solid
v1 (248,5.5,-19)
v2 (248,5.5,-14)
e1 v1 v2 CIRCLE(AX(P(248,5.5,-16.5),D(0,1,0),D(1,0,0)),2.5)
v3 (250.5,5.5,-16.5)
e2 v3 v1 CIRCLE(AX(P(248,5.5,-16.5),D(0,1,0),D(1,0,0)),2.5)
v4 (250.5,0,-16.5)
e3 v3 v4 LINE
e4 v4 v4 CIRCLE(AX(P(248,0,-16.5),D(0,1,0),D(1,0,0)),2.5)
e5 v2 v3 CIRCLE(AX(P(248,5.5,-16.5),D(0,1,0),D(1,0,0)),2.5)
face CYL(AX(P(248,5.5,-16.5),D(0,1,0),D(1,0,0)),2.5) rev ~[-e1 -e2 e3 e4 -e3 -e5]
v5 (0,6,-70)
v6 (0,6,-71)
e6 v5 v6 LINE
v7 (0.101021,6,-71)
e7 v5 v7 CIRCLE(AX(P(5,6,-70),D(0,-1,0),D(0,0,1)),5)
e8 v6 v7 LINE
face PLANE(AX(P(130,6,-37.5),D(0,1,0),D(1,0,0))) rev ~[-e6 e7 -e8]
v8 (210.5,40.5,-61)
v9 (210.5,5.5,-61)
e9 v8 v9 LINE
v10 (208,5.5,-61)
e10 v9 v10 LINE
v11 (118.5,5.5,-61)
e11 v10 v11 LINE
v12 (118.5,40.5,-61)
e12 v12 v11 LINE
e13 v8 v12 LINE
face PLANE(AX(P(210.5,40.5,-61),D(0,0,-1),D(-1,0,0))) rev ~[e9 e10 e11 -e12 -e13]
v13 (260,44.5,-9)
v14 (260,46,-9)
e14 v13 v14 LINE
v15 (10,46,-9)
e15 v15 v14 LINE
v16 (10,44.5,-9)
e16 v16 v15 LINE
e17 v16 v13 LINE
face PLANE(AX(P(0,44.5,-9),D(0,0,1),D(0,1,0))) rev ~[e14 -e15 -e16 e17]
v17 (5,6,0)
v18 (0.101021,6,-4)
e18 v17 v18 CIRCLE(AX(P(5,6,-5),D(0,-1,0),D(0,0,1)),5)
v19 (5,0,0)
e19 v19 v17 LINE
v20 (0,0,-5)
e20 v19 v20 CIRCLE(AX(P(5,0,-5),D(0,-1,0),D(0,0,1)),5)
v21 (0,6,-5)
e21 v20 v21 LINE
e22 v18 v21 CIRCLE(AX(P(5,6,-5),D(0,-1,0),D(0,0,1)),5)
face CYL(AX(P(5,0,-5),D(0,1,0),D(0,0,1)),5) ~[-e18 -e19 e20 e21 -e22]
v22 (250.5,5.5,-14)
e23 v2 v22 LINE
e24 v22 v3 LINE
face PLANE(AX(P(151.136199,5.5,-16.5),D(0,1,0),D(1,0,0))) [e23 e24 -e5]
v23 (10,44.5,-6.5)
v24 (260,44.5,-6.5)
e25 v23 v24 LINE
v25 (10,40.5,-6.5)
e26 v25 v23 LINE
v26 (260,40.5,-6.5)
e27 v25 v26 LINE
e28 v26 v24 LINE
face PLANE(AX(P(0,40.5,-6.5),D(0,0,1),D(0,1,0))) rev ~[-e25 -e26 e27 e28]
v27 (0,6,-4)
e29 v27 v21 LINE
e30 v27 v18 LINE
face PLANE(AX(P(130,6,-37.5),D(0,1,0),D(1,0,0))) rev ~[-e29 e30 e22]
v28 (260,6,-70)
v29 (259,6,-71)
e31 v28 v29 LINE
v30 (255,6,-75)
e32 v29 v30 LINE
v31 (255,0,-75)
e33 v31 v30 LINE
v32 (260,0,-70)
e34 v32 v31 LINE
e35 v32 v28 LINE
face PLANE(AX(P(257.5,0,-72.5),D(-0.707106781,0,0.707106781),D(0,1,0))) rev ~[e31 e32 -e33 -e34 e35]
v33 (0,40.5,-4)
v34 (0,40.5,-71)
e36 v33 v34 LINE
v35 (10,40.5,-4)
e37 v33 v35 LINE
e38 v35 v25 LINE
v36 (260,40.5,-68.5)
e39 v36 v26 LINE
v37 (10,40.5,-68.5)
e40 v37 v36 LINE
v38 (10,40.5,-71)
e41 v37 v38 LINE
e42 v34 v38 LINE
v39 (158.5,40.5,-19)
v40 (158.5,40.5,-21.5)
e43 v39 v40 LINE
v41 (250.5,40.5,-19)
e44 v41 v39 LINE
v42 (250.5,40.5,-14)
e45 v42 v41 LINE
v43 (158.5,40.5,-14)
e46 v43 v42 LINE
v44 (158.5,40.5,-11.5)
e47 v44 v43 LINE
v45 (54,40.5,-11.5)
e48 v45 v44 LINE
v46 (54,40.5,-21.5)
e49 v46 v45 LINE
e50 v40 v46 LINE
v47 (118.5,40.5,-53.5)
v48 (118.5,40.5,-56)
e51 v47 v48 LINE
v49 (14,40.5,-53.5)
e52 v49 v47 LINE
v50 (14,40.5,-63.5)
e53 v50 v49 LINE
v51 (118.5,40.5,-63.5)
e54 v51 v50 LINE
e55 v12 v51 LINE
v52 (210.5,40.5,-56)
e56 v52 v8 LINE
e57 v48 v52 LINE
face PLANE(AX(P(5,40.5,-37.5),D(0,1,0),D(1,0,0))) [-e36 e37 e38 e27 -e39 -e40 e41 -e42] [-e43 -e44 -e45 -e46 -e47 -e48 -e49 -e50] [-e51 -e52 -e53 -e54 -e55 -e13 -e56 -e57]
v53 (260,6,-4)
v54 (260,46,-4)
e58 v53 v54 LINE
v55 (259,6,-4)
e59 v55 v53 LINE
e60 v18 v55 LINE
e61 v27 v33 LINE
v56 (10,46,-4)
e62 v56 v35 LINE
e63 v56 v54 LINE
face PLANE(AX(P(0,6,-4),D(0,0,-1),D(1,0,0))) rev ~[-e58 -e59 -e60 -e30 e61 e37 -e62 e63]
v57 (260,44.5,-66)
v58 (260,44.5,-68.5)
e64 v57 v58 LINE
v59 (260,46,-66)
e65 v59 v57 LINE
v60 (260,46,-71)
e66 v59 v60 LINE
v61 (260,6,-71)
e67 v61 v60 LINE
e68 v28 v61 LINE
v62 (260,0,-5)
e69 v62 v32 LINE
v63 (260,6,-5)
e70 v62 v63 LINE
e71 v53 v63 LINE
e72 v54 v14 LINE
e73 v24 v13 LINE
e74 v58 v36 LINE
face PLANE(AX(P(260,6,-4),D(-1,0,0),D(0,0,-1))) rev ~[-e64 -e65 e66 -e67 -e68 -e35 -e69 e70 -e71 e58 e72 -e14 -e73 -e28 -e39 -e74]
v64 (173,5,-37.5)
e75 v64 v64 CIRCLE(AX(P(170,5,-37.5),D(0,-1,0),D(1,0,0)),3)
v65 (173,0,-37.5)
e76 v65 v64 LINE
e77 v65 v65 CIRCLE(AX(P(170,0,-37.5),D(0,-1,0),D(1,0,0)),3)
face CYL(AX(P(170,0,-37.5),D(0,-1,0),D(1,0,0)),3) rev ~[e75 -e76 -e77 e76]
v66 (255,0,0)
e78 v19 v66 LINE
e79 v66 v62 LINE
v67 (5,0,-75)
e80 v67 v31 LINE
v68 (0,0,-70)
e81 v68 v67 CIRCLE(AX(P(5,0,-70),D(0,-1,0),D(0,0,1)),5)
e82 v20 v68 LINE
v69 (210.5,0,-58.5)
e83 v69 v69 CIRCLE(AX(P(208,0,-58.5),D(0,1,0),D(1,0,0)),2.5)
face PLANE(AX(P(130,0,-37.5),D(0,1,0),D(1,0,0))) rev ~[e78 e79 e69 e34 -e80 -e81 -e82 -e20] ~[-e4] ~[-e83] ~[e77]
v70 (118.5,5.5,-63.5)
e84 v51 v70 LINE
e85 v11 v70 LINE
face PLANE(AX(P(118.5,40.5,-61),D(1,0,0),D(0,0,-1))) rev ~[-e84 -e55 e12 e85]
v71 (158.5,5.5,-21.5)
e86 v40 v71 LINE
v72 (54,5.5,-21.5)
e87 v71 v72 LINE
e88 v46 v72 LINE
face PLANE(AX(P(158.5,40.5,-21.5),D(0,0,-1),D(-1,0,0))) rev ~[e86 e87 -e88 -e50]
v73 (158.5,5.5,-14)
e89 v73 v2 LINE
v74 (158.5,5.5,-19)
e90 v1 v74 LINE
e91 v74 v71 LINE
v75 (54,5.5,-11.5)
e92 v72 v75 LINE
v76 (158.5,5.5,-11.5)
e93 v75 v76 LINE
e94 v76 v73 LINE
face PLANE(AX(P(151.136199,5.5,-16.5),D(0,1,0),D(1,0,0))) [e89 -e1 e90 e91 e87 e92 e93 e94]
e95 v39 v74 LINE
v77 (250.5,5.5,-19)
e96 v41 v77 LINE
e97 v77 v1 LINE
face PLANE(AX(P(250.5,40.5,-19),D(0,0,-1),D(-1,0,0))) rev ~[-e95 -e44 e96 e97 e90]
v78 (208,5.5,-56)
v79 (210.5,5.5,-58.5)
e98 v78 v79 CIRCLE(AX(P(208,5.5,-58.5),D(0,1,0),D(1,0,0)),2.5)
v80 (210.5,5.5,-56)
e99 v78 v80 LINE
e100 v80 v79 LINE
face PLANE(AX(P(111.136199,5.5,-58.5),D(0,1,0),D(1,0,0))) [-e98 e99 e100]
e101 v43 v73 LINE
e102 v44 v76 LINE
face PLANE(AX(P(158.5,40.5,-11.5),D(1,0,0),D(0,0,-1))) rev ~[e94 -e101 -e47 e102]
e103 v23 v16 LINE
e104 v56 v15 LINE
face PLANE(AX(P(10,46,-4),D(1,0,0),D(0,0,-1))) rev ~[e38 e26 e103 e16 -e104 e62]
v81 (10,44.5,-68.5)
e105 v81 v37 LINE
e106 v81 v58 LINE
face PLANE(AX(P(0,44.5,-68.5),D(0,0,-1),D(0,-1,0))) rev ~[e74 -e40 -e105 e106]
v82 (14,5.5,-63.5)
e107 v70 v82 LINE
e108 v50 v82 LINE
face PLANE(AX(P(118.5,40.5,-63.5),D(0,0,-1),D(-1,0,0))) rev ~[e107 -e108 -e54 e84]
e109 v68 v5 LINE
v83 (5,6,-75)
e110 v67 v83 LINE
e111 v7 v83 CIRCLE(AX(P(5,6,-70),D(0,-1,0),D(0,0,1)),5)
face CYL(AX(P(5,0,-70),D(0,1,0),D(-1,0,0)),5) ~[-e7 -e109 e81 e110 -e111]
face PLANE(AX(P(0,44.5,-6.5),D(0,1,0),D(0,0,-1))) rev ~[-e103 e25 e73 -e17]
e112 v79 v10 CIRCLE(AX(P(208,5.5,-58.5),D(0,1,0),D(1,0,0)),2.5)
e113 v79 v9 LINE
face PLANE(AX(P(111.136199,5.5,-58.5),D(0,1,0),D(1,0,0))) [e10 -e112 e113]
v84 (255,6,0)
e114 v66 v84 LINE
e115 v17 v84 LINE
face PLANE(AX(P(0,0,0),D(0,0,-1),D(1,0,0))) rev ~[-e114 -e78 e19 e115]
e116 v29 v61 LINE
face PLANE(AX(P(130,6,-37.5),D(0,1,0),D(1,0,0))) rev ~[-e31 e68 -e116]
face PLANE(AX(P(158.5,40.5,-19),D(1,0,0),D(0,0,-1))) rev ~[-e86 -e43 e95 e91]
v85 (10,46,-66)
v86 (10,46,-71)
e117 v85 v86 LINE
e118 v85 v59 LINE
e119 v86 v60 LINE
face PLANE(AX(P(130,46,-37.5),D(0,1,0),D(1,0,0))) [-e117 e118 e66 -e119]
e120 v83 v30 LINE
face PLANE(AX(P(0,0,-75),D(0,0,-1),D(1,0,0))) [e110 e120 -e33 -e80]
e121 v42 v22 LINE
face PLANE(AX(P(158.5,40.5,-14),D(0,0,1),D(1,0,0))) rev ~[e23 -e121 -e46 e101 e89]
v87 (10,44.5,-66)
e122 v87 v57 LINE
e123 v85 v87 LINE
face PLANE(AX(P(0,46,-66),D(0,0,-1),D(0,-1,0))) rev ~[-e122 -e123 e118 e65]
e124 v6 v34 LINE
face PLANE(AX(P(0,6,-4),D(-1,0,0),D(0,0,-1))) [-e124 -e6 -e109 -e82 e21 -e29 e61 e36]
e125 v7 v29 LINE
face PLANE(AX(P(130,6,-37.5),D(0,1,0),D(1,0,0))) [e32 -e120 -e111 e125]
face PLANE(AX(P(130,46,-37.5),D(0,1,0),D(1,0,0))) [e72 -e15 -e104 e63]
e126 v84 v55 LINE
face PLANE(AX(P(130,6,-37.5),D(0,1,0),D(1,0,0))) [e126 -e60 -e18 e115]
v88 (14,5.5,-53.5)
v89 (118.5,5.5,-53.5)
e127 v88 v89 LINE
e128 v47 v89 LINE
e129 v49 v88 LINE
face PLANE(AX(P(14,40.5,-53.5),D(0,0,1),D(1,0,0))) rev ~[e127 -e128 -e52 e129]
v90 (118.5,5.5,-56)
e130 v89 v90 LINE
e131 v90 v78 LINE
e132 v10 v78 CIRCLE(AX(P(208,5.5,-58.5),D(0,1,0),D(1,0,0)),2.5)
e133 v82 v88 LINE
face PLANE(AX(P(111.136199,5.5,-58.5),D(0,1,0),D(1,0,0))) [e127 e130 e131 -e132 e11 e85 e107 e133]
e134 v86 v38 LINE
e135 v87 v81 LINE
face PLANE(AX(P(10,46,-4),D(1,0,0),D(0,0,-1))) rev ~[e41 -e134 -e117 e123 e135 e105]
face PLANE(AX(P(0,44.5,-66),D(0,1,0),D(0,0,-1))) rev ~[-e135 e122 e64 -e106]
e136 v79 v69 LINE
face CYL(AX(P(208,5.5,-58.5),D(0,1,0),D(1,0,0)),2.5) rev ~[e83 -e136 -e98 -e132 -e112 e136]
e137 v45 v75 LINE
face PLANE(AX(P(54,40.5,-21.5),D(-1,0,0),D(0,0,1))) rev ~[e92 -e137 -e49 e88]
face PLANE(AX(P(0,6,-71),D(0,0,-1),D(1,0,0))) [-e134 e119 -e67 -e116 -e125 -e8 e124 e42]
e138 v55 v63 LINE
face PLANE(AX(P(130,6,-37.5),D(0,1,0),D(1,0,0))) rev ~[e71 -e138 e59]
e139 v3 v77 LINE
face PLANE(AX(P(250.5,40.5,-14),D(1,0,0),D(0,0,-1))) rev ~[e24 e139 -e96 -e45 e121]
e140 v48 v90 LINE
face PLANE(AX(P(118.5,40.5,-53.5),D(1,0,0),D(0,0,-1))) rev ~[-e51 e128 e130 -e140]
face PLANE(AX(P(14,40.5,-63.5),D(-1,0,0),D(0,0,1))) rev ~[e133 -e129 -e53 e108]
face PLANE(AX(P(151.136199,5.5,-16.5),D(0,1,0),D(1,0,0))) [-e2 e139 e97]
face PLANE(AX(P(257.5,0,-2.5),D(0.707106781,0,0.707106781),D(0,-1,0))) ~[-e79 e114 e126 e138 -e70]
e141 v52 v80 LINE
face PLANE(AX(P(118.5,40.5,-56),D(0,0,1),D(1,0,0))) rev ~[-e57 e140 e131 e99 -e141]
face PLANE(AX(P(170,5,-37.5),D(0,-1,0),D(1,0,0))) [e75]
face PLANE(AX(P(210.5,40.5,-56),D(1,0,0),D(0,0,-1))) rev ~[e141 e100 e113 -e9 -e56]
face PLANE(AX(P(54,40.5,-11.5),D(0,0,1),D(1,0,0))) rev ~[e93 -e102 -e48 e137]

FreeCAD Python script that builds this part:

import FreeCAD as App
import Part
import Sketcher

V = App.Vector


def edges_at(feature, points):
    """Names of the edges that pass closest to the given points."""
    edges = feature.Shape.Edges
    near = lambda p: min(range(len(edges)), key=lambda i: edges[i].distToShape(Part.Vertex(*p))[0])
    return sorted({f"Edge{near(p) + 1}" for p in points})


def add_polygon(sketch, points):
    """Adds a closed chain of lines whose ends are joined by coincident constraints."""
    first, n = sketch.GeometryCount, len(points)
    for a, b in zip(points, points[1:] + points[:1]):
        sketch.addGeometry(Part.LineSegment(App.Vector(*a, 0), App.Vector(*b, 0)), False)
    for i in range(n):
        sketch.addConstraint(Sketcher.Constraint("Coincident", first + i, 2, first + (i + 1) % n, 1))

doc = App.newDocument("Part")
body = doc.addObject("PartDesign::Body", "Body")

sketch1 = body.newObject("Sketcher::SketchObject", "Sketch")
sketch1.AttachmentSupport = (doc.getObject("XZ_Plane"), [""])
sketch1.MapMode = "FlatFace"
add_polygon(sketch1, [(0, -75), (0, 0), (260, 0), (260, -75)])
sketch1.addConstraint([
    Sketcher.Constraint("Vertical", 0),
    Sketcher.Constraint("Horizontal", 1),
    Sketcher.Constraint("Vertical", 2),
    Sketcher.Constraint("Horizontal", 3),
    Sketcher.Constraint("Coincident", 0, 2, -1, 1),
    Sketcher.Constraint("DistanceX", 1, 1, 1, 2, 260.0),
    Sketcher.Constraint("DistanceY", 0, 1, 0, 2, 75.0),
])
pad1 = body.newObject("PartDesign::Pad", "Pad")
pad1.Profile = sketch1
pad1.Length = 6
pad1.Reversed = True
doc.recompute()

chamfer = body.newObject("PartDesign::Chamfer", "Chamfer")
chamfer.Base = (pad1, edges_at(pad1, [(260, 3, -75), (260, 3, 0)]))
chamfer.Size = 5
doc.recompute()

fillet = body.newObject("PartDesign::Fillet", "Fillet")
fillet.Base = (chamfer, edges_at(chamfer, [(0, 3, -75), (0, 3, 0)]))
fillet.Radius = 5

sketch2 = body.newObject("Sketcher::SketchObject", "Sketch001")
sketch2.AttachmentSupport = (doc.getObject("XZ_Plane"), [""])
sketch2.MapMode = "FlatFace"
sketch2.AttachmentOffset = App.Placement(V(0, 0, -6), App.Rotation())
add_polygon(sketch2, [(0, -71), (0, -4), (260, -4), (260, -71)])
sketch2.addConstraint([
    Sketcher.Constraint("Vertical", 0),
    Sketcher.Constraint("Horizontal", 1),
    Sketcher.Constraint("Vertical", 2),
    Sketcher.Constraint("Horizontal", 3),
    Sketcher.Constraint("PointOnObject", 0, 2, -2),
    Sketcher.Constraint("DistanceX", 1, 1, 1, 2, 260.0),
    Sketcher.Constraint("DistanceY", 0, 1, 0, 2, 67.0),
    Sketcher.Constraint("DistanceY", 0, 2, -1, 1, 4.0),
])
pad2 = body.newObject("PartDesign::Pad", "Pad001")
pad2.Profile = sketch2
pad2.Length = 40
pad2.Reversed = True

sketch3 = body.newObject("Sketcher::SketchObject", "Sketch002")
sketch3.AttachmentSupport = (doc.getObject("YZ_Plane"), [""])
sketch3.MapMode = "FlatFace"
add_polygon(sketch3, [(46, -66), (44.5, -66), (44.5, -68.5), (40.5, -68.5), (40.5, -6.5), (44.5, -6.5), (44.5, -9), (46, -9)])
sketch3.addConstraint([
    Sketcher.Constraint("Horizontal", 0),
    Sketcher.Constraint("Vertical", 1),
    Sketcher.Constraint("Horizontal", 2),
    Sketcher.Constraint("Vertical", 3),
    Sketcher.Constraint("Horizontal", 4),
    Sketcher.Constraint("Vertical", 5),
    Sketcher.Constraint("Horizontal", 6),
    Sketcher.Constraint("Vertical", 7),
    Sketcher.Constraint("Vertical", 1, 2, 4, 2),
    Sketcher.Constraint("Equal", 1, 5),
    Sketcher.Constraint("DistanceX", 2, 2, 2, 1, 4.0),
    Sketcher.Constraint("DistanceY", 3, 1, 3, 2, 62.0),
    Sketcher.Constraint("DistanceY", 7, 2, 7, 1, 57.0),
    Sketcher.Constraint("DistanceX", 0, 2, 0, 1, 1.5),
    Sketcher.Constraint("DistanceY", 0, 2, -1, 1, 66.0),
    Sketcher.Constraint("DistanceX", -1, 1, 6, 2, 46.0),
])
pocket1 = body.newObject("PartDesign::Pocket", "Pocket")
pocket1.Profile = sketch3
pocket1.Type = "ThroughAll"
pocket1.Reversed = True

sketch4 = body.newObject("Sketcher::SketchObject", "Sketch003")
sketch4.AttachmentSupport = (doc.getObject("XZ_Plane"), [""])
sketch4.MapMode = "FlatFace"
sketch4.AttachmentOffset = App.Placement(V(0, 0, -46), App.Rotation())
add_polygon(sketch4, [(0, -71), (0, -4), (10, -4), (10, -71)])
sketch4.addConstraint([
    Sketcher.Constraint("Vertical", 0),
    Sketcher.Constraint("Horizontal", 1),
    Sketcher.Constraint("Vertical", 2),
    Sketcher.Constraint("Horizontal", 3),
    Sketcher.Constraint("PointOnObject", 0, 2, -2),
    Sketcher.Constraint("DistanceX", 1, 1, 1, 2, 10.0),
    Sketcher.Constraint("DistanceY", 0, 1, 0, 2, 67.0),
    Sketcher.Constraint("DistanceY", 0, 2, -1, 1, 4.0),
])
pocket2 = body.newObject("PartDesign::Pocket", "Pocket001")
pocket2.Profile = sketch4
pocket2.Length = 5.5
pocket2.Reversed = True

sketch5 = body.newObject("Sketcher::SketchObject", "Sketch004")
sketch5.AttachmentSupport = (doc.getObject("XZ_Plane"), [""])
sketch5.MapMode = "FlatFace"
sketch5.AttachmentOffset = App.Placement(V(0, 0, -40.5), App.Rotation())
add_polygon(sketch5, [(14, -63.5), (14, -53.5), (118.5, -53.5), (118.5, -56), (210.5, -56), (210.5, -61), (118.5, -61), (118.5, -63.5)])
add_polygon(sketch5, [(54, -21.5), (54, -11.5), (158.5, -11.5), (158.5, -14), (250.5, -14), (250.5, -19), (158.5, -19), (158.5, -21.5)])
sketch5.addConstraint([
    Sketcher.Constraint("Vertical", 0),
    Sketcher.Constraint("Horizontal", 1),
    Sketcher.Constraint("Vertical", 2),
    Sketcher.Constraint("Horizontal", 3),
    Sketcher.Constraint("Vertical", 4),
    Sketcher.Constraint("Horizontal", 5),
    Sketcher.Constraint("Vertical", 6),
    Sketcher.Constraint("Horizontal", 7),
    Sketcher.Constraint("Vertical", 8),
    Sketcher.Constraint("Horizontal", 9),
    Sketcher.Constraint("Vertical", 10),
    Sketcher.Constraint("Horizontal", 11),
    Sketcher.Constraint("Vertical", 12),
    Sketcher.Constraint("Horizontal", 13),
    Sketcher.Constraint("Vertical", 14),
    Sketcher.Constraint("Horizontal", 15),
    Sketcher.Constraint("Vertical", 2, 2, 5, 2),
    Sketcher.Constraint("Vertical", 10, 2, 13, 2),
    Sketcher.Constraint("Equal", 7, 9),
    Sketcher.Constraint("Equal", 5, 11),
    Sketcher.Constraint("Equal", 2, 6),
    Sketcher.Constraint("Equal", 0, 8),
    Sketcher.Constraint("Equal", 6, 10),
    Sketcher.Constraint("Equal", 4, 12),
    Sketcher.Constraint("DistanceX", 3, 1, 3, 2, 92.0),
    Sketcher.Constraint("DistanceY", 0, 1, 0, 2, 10.0),
    Sketcher.Constraint("DistanceY", 4, 2, 4, 1, 5.0),
    Sketcher.Constraint("DistanceX", 1, 1, 1, 2, 104.5),
    Sketcher.Constraint("DistanceX", -1, 1, 0, 2, 14.0),
    Sketcher.Constraint("DistanceY", 2, 2, -1, 1, 56.0),
    Sketcher.Constraint("DistanceX", -1, 1, 8, 2, 54.0),
    Sketcher.Constraint("DistanceY", 10, 2, -1, 1, 14.0),
])
pocket3 = body.newObject("PartDesign::Pocket", "Pocket002")
pocket3.Profile = sketch5
pocket3.Length = 35
pocket3.Reversed = True

sketch6 = body.newObject("Sketcher::SketchObject", "Sketch005")
sketch6.AttachmentSupport = (doc.getObject("XZ_Plane"), [""])
sketch6.MapMode = "FlatFace"
sketch6.AttachmentOffset = App.Placement(V(0, 0, -5.5), App.Rotation())
sketch6.addGeometry([
    Part.Circle(V(208, -58.5, 0), V(0, 0, 1), 2.5),
    Part.Circle(V(248, -16.5, 0), V(0, 0, 1), 2.5),
], False)
sketch6.addConstraint([
    Sketcher.Constraint("Equal", 0, 1),
    Sketcher.Constraint("Diameter", 0, 5.0),
    Sketcher.Constraint("DistanceX", -1, 1, 0, 3, 208.0),
    Sketcher.Constraint("DistanceX", -1, 1, 1, 3, 248.0),
    Sketcher.Constraint("DistanceY", 0, 3, 1, 3, 42.0),
    Sketcher.Constraint("DistanceY", 0, 3, -1, 1, 58.5),
])
pocket4 = body.newObject("PartDesign::Pocket", "Pocket003")
pocket4.Profile = sketch6
pocket4.Type = "ThroughAll"
pocket4.Reversed = True

sketch7 = body.newObject("Sketcher::SketchObject", "Sketch006")
sketch7.AttachmentSupport = (doc.getObject("XZ_Plane"), [""])
sketch7.MapMode = "FlatFace"
sketch7.addGeometry(Part.Circle(V(170, -37.5, 0), V(0, 0, 1), 3), False)
sketch7.addConstraint([
    Sketcher.Constraint("Diameter", 0, 6.0),
    Sketcher.Constraint("DistanceX", -1, 1, 0, 3, 170.0),
    Sketcher.Constraint("DistanceY", 0, 3, -1, 1, 37.5),
])
pocket5 = body.newObject("PartDesign::Pocket", "Pocket004")
pocket5.Profile = sketch7
pocket5.Length = 5

doc.recompute()
